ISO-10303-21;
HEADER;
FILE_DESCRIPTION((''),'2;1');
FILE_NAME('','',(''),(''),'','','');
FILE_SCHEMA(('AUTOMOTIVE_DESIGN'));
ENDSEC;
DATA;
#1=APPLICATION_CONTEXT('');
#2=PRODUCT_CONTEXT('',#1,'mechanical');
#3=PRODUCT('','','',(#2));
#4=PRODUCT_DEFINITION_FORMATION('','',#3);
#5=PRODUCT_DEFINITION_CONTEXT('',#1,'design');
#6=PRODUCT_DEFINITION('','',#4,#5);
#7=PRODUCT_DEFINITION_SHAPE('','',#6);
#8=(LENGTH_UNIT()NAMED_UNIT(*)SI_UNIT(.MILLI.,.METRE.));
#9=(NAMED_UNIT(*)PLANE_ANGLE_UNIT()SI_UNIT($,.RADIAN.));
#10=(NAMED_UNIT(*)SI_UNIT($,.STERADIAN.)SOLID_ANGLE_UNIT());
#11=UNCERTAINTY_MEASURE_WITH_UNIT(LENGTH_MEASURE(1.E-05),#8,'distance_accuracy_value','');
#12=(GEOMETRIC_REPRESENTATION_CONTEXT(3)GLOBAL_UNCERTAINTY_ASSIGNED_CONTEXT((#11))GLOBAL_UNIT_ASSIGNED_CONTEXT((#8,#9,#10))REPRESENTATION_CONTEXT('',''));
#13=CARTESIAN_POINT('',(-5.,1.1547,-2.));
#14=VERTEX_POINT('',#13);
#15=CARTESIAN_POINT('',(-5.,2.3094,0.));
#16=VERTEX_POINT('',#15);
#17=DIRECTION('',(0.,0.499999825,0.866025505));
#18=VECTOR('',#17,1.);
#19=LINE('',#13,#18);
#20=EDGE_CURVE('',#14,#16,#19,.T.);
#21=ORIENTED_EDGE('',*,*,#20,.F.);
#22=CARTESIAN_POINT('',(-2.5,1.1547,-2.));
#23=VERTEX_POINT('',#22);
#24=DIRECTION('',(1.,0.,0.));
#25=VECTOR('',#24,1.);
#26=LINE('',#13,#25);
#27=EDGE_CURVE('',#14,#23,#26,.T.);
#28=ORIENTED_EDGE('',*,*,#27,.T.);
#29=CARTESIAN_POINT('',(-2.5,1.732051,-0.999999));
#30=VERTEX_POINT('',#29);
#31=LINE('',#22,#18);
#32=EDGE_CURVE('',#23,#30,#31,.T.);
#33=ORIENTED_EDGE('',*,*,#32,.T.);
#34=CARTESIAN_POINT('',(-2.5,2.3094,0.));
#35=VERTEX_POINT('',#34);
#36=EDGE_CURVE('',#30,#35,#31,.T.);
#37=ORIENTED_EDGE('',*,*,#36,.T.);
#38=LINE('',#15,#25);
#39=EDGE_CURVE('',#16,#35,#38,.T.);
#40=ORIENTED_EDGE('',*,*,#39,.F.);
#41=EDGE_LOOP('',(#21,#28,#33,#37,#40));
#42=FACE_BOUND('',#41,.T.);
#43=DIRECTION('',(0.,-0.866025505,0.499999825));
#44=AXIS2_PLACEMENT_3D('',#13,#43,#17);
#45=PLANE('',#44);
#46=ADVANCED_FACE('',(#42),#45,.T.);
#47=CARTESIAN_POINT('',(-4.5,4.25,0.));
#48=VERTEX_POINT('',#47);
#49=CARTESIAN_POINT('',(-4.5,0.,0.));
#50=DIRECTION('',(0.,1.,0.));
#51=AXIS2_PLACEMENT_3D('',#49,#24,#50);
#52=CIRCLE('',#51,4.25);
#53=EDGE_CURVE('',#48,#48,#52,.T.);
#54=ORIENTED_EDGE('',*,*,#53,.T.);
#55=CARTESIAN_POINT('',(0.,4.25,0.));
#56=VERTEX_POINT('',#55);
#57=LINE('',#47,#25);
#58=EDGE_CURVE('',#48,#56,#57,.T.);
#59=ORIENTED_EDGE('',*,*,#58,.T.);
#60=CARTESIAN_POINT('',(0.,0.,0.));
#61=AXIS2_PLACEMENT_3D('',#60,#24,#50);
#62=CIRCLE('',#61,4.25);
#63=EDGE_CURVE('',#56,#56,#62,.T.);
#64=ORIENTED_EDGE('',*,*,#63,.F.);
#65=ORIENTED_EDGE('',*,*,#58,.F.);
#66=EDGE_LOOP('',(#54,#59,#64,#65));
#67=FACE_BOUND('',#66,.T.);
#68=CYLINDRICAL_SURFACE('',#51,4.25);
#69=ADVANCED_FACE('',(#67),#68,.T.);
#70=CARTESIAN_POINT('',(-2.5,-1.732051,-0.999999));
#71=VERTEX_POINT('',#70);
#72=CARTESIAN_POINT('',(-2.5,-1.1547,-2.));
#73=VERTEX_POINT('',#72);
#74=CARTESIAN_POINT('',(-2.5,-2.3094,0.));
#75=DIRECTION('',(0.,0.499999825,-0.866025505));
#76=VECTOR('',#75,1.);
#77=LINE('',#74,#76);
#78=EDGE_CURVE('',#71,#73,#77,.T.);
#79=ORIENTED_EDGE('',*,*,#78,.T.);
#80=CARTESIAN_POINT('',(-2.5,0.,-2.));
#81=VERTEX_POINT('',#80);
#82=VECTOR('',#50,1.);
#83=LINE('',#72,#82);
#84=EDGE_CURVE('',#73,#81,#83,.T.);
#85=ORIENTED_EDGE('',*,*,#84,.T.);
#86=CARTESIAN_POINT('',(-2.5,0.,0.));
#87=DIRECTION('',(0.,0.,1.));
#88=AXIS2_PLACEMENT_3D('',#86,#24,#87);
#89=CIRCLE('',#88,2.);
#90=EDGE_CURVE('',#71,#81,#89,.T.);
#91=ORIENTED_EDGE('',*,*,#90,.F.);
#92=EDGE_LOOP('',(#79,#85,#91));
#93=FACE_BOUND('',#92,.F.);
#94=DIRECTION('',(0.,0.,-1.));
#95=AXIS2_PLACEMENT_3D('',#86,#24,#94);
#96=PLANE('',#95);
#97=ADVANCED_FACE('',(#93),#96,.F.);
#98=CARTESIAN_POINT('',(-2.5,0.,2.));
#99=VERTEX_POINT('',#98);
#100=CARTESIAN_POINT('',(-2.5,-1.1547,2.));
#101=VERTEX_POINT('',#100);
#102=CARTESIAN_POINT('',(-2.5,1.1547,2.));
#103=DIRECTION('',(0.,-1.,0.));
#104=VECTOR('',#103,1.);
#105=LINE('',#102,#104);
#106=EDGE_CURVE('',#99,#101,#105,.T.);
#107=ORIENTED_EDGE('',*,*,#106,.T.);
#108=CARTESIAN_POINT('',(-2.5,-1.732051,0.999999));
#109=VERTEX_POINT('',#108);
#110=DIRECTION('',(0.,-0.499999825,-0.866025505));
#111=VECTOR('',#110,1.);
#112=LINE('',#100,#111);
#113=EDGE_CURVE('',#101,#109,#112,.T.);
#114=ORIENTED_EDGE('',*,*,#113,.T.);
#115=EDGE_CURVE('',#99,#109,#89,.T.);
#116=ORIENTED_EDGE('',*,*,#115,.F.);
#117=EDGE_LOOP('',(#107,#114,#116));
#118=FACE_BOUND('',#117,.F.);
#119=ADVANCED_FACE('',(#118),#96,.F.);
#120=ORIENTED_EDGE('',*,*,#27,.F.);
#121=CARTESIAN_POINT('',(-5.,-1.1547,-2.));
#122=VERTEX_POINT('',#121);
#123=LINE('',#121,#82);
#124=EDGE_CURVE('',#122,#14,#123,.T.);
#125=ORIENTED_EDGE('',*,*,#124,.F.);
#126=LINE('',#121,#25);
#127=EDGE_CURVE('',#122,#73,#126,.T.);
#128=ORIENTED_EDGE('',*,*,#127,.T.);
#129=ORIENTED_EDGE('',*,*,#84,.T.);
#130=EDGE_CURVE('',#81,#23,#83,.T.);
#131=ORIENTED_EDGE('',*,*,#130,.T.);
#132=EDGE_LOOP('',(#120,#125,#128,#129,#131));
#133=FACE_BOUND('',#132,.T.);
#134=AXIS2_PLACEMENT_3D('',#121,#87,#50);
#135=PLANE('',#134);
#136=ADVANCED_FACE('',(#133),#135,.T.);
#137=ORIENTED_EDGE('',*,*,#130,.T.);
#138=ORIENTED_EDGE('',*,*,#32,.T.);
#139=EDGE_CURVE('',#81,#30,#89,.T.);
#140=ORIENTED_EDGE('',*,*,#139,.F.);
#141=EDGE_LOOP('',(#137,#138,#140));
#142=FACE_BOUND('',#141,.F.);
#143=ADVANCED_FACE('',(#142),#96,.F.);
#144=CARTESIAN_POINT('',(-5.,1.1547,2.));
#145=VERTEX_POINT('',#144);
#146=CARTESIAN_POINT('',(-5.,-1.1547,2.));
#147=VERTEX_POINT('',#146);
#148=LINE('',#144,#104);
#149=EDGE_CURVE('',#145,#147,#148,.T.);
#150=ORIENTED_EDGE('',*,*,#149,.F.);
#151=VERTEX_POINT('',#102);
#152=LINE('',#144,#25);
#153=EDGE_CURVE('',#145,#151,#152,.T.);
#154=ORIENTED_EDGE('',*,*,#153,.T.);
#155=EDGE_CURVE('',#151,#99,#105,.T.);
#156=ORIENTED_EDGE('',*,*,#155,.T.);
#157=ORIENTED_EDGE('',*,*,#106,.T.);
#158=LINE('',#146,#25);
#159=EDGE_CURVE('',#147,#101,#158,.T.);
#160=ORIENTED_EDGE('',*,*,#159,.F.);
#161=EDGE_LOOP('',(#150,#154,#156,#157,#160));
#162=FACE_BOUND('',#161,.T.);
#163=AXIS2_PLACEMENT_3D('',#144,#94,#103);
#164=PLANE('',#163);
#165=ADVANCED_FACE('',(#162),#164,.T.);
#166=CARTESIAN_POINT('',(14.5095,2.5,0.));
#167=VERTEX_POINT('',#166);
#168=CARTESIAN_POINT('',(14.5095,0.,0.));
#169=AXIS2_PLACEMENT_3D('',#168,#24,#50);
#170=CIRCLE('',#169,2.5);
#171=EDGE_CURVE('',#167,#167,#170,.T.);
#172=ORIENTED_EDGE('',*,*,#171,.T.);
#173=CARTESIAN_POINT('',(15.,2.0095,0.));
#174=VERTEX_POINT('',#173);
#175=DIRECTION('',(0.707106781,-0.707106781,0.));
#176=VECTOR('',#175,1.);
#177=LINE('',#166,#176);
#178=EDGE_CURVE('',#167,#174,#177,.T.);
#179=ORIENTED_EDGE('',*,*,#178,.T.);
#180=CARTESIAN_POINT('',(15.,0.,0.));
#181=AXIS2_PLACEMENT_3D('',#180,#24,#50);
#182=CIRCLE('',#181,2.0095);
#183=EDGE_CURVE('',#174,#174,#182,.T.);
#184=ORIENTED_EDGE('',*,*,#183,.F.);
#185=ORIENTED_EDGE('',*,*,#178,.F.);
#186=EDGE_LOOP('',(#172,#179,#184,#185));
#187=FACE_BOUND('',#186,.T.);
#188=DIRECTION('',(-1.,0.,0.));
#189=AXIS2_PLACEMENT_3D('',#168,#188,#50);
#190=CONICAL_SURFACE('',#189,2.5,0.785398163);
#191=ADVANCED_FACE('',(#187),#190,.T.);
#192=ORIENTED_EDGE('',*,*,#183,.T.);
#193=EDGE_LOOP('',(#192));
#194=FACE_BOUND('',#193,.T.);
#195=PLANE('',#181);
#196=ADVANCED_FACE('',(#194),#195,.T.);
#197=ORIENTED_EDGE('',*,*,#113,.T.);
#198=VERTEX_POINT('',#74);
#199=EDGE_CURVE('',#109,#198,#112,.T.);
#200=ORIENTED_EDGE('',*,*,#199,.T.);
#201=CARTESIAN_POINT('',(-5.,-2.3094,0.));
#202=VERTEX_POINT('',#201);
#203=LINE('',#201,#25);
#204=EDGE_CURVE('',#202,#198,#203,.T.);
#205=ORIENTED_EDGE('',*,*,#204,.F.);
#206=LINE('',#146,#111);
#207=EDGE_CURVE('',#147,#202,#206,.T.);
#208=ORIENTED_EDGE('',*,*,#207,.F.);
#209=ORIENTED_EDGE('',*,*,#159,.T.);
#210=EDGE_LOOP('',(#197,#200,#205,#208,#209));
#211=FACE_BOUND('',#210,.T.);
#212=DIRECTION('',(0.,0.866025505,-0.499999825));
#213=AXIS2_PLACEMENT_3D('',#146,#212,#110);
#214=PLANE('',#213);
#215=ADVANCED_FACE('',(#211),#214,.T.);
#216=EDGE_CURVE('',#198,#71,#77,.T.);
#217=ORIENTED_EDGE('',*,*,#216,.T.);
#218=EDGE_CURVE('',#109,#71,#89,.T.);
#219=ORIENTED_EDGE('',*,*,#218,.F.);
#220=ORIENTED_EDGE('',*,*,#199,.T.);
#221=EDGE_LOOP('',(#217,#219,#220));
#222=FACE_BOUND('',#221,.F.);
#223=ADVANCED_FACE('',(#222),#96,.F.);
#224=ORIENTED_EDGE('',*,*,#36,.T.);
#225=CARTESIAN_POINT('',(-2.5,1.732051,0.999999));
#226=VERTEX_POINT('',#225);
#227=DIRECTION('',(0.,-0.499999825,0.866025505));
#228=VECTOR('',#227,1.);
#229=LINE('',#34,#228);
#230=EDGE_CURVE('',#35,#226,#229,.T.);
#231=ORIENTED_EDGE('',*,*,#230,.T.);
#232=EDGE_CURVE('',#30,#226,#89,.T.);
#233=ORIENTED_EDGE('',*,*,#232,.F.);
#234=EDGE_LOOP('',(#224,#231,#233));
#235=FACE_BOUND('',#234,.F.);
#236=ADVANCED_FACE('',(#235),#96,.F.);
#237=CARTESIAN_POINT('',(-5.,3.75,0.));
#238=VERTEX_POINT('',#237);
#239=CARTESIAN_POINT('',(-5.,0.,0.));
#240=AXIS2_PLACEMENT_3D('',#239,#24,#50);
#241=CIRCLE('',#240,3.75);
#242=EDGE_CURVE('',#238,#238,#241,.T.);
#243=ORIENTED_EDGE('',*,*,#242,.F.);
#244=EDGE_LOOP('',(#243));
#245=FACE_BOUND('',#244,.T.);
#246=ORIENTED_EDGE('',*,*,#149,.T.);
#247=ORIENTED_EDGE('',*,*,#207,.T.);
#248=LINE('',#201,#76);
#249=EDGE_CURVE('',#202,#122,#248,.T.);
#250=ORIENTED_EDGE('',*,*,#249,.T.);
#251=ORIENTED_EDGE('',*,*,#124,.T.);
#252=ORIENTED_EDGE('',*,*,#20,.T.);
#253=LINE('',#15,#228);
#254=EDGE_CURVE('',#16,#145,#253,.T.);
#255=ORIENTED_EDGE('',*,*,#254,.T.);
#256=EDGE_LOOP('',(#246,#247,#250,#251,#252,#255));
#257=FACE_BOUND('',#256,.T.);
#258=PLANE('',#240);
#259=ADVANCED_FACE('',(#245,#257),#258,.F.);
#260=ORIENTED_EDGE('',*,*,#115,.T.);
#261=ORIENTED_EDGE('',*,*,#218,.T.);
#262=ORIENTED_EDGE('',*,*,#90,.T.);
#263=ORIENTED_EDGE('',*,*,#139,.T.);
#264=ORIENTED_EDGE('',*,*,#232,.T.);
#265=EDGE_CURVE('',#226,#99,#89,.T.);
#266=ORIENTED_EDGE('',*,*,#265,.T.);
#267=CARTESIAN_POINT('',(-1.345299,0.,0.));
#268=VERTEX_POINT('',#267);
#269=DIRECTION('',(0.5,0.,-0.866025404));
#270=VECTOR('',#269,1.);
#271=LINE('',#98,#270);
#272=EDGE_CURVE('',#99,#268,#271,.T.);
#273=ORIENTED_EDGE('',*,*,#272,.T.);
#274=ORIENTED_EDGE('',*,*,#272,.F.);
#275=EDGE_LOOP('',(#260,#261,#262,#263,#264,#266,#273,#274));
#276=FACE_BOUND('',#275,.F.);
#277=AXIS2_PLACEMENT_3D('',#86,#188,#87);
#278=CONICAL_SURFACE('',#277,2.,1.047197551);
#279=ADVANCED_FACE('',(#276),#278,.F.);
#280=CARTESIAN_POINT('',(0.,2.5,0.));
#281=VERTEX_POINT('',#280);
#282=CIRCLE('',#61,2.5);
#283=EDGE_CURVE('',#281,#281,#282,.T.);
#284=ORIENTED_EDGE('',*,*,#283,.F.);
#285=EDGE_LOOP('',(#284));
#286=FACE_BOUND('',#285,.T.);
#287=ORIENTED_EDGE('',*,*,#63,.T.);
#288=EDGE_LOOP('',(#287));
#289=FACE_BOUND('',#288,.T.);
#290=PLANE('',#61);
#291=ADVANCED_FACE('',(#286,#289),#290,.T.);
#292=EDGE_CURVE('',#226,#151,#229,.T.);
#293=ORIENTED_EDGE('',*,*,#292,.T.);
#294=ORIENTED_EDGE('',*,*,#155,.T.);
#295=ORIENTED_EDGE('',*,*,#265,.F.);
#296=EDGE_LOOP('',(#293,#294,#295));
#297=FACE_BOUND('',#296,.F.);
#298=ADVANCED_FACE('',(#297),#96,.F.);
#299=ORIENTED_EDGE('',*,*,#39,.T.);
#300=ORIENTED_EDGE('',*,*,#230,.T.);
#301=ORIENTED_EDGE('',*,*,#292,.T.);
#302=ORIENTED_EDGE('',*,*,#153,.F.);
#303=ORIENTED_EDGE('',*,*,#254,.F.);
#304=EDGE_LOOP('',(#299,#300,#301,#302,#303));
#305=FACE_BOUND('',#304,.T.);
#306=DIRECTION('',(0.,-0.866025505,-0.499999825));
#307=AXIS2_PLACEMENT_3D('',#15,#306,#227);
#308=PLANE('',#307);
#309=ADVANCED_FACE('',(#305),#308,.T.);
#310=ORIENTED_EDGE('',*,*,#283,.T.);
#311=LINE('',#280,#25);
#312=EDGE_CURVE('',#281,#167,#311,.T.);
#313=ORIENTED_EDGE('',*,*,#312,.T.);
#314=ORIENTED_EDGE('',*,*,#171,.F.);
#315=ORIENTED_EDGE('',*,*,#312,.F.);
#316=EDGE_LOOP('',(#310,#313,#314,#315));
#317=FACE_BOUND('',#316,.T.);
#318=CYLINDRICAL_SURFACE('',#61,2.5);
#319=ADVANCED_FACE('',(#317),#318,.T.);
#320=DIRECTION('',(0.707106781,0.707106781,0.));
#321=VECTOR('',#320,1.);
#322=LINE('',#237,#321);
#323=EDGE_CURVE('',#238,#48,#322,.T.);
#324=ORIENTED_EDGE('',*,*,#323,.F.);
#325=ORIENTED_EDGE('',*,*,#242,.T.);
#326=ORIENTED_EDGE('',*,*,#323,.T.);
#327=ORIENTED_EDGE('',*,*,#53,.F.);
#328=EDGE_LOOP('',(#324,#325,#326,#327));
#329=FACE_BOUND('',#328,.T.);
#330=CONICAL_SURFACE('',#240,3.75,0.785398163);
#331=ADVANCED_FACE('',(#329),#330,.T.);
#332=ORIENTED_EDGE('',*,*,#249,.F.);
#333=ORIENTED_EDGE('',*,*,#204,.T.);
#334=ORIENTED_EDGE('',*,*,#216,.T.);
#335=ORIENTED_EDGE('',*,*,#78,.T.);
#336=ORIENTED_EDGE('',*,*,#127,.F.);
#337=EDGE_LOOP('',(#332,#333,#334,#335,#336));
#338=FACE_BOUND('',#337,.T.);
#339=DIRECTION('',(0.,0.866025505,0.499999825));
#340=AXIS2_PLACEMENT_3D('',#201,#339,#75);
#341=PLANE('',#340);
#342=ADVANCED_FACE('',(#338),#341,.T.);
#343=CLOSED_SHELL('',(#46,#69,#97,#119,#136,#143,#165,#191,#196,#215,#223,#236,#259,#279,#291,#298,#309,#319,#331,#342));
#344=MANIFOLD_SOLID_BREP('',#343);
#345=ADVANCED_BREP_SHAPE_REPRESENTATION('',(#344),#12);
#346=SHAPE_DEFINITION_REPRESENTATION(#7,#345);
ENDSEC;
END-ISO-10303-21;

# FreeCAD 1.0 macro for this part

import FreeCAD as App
import Part
import Sketcher
from FreeCAD import Vector
Q = App.Units.Quantity

doc = App.newDocument("Part")
params = doc.addObject("Spreadsheet::Sheet", "Params")
for row, (alias, value) in enumerate([
    ("sketch1_width", "20 mm"),
    ("sketch1_width2", "4.5 mm"),
    ("sketch1_height", "1.75 mm"),
    ("sketch1_height2", "3.75 mm"),
    ("revolution_angle", "360 deg"),
    ("sketch2_diameter", "4 mm"),
    ("hole_diameter", "4 mm"),
    ("hole_depth", "2.5 mm"),
    ("pocket1_length", "2.5 mm"),
], start=1):
    params.set(f"A{row}", alias)
    params.set(f"B{row}", "=" + value)
    params.setAlias(f"B{row}", alias)

body = doc.addObject("PartDesign::Body", "Body")

# Sketch on XY plane
sketch1 = doc.addObject("Sketcher::SketchObject", "Sketch")
body.addObject(sketch1)
sketch1.AttachmentSupport = (doc.XY_Plane, [""])
sketch1.MapMode = "FlatFace"
sketch1.addGeometry([
    Part.LineSegment(Vector(-5, 0, 0), Vector(15, 0, 0)),  # 0
    Part.LineSegment(Vector(15, 0, 0), Vector(15, 2, 0)),  # 1
    Part.LineSegment(Vector(15, 2, 0), Vector(14.5, 2.5, 0)),  # 2
    Part.LineSegment(Vector(14.5, 2.5, 0), Vector(0, 2.5, 0)),  # 3
    Part.LineSegment(Vector(0, 2.5, 0), Vector(0, 4.2, 0)),  # 4
    Part.LineSegment(Vector(0, 4.2, 0), Vector(-4.5, 4.2, 0)),  # 5
    Part.LineSegment(Vector(-4.5, 4.2, 0), Vector(-5, 3.8, 0)),  # 6
    Part.LineSegment(Vector(-5, 3.8, 0), Vector(-5, 0, 0)),  # 7
], False)
sketch1.addConstraint([
    Sketcher.Constraint("Coincident", 0, 2, 1, 1),
    Sketcher.Constraint("Coincident", 1, 2, 2, 1),
    Sketcher.Constraint("Coincident", 2, 2, 3, 1),
    Sketcher.Constraint("Coincident", 3, 2, 4, 1),
    Sketcher.Constraint("Coincident", 4, 2, 5, 1),
    Sketcher.Constraint("Coincident", 5, 2, 6, 1),
    Sketcher.Constraint("Coincident", 6, 2, 7, 1),
    Sketcher.Constraint("Coincident", 7, 2, 0, 1),
    Sketcher.Constraint("Horizontal", 0),
    Sketcher.Constraint("Vertical", 1),
    Sketcher.Constraint("Horizontal", 3),
    Sketcher.Constraint("Vertical", 4),
    Sketcher.Constraint("Horizontal", 5),
    Sketcher.Constraint("Vertical", 7),
    Sketcher.Constraint("PointOnObject", 0, 2, -1),
    Sketcher.Constraint("PointOnObject", 3, 2, -2),
    Sketcher.Constraint("Perpendicular", 2, 6),
    Sketcher.Constraint("DistanceX", 0, 1, 0, 2, Q("20 mm")),
    Sketcher.Constraint("Angle", 2, Q("135 deg")),
    Sketcher.Constraint("DistanceX", 5, 2, 5, 1, Q("4.5 mm")),
    Sketcher.Constraint("DistanceX", -1, 1, 0, 2, Q("15 mm")),
    Sketcher.Constraint("DistanceY", 4, 1, 4, 2, Q("1.75 mm")),
    Sketcher.Constraint("DistanceY", 7, 2, 7, 1, Q("3.75 mm")),
    Sketcher.Constraint("DistanceX", 3, 2, 3, 1, Q("14.5095 mm")),
])
sketch1.setExpression("Constraints[17]", "Params.sketch1_width")
sketch1.setExpression("Constraints[19]", "Params.sketch1_width2")
sketch1.setExpression("Constraints[21]", "Params.sketch1_height")
sketch1.setExpression("Constraints[22]", "Params.sketch1_height2")
revolution = doc.addObject("PartDesign::Revolution", "Revolution")
body.addObject(revolution)
revolution.Profile = sketch1
revolution.ReferenceAxis = (sketch1, ["H_Axis"])
revolution.setExpression("Angle", "Params.revolution_angle")

# Sketch on YZ plane
sketch2 = doc.addObject("Sketcher::SketchObject", "Sketch001")
body.addObject(sketch2)
sketch2.AttachmentSupport = (doc.YZ_Plane, [""])
sketch2.MapMode = "FlatFace"
sketch2.AttachmentOffset = App.Placement(Vector(0, 0, -5), App.Rotation())
sketch2.addGeometry(Part.Circle(Vector(0, 0, 0), Vector(0, 0, 1), 2), False)
sketch2.addConstraint([
    Sketcher.Constraint("Coincident", 0, 3, -1, 1),
    Sketcher.Constraint("Diameter", 0, Q("4 mm")),
])
sketch2.setExpression("Constraints[1]", "Params.sketch2_diameter")
doc.recompute()
hole = doc.addObject("PartDesign::Hole", "Hole")
body.addObject(hole)
hole.Profile = sketch2
hole.ThreadType = "None"
hole.setExpression("Diameter", "Params.hole_diameter")
hole.DepthType = "Dimension"
hole.setExpression("Depth", "Params.hole_depth")
hole.DrillPoint = "Angled"
hole.DrillPointAngle = 120
hole.Reversed = True

# Sketch on YZ plane
sketch3 = doc.addObject("Sketcher::SketchObject", "Sketch002")
body.addObject(sketch3)
sketch3.AttachmentSupport = (doc.YZ_Plane, [""])
sketch3.MapMode = "FlatFace"
sketch3.AttachmentOffset = App.Placement(Vector(0, 0, -5), App.Rotation())
sketch3.addGeometry([
    Part.LineSegment(Vector(1.2, 2, 0), Vector(-1.2, 2, 0)),  # 0
    Part.LineSegment(Vector(-1.2, 2, 0), Vector(-2.3, 0, 0)),  # 1
    Part.LineSegment(Vector(-2.3, 0, 0), Vector(-1.2, -2, 0)),  # 2
    Part.LineSegment(Vector(-1.2, -2, 0), Vector(1.2, -2, 0)),  # 3
    Part.LineSegment(Vector(1.2, -2, 0), Vector(2.3, 0, 0)),  # 4
    Part.LineSegment(Vector(2.3, 0, 0), Vector(1.2, 2, 0)),  # 5
], False)
sketch3.addConstraint([
    Sketcher.Constraint("Coincident", 0, 2, 1, 1),
    Sketcher.Constraint("Coincident", 1, 2, 2, 1),
    Sketcher.Constraint("Coincident", 2, 2, 3, 1),
    Sketcher.Constraint("Coincident", 3, 2, 4, 1),
    Sketcher.Constraint("Coincident", 4, 2, 5, 1),
    Sketcher.Constraint("Coincident", 5, 2, 0, 1),
    Sketcher.Constraint("Horizontal", 0),
    Sketcher.Constraint("Horizontal", 3),
    Sketcher.Constraint("Symmetric", 0, 2, 3, 2, -1, 1),
    Sketcher.Constraint("Symmetric", 1, 2, 4, 2, -1, 1),
    Sketcher.Constraint("PointOnObject", 1, 2, -1),
    Sketcher.Constraint("Parallel", 2, 5),
    Sketcher.Constraint("Vertical", 0, 2, 2, 2),
    Sketcher.Constraint("Angle", 1, Q("-120 deg")),
    Sketcher.Constraint("DistanceY", -1, 1, 0, 2, Q("2 mm")),
    Sketcher.Constraint("DistanceX", 0, 2, 0, 1, Q("2.3094 mm")),
])
pocket1 = doc.addObject("PartDesign::Pocket", "Pocket")
body.addObject(pocket1)
pocket1.Profile = sketch3
pocket1.setExpression("Length", "Params.pocket1_length")
pocket1.Reversed = True

doc.recompute()
